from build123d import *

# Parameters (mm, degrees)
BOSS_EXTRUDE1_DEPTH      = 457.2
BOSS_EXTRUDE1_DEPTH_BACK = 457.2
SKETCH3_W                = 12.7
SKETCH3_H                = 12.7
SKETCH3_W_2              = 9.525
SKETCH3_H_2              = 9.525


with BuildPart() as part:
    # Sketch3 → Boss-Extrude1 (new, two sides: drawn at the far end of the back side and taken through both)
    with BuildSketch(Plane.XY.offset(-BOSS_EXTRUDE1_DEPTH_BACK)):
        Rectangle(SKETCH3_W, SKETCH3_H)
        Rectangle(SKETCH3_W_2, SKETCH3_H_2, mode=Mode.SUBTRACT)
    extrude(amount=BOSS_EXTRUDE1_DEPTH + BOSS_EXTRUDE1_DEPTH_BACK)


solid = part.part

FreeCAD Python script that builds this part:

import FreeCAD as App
import Part
import Sketcher

V = App.Vector
Q = App.Units.Quantity

doc = App.newDocument("Part")
body = doc.addObject("PartDesign::Body", "Body")

# Sketch on XY plane
sketch1 = body.newObject("Sketcher::SketchObject", "Sketch")
sketch1.AttachmentSupport = (doc.getObject("XY_Plane"), [""])
sketch1.MapMode = "FlatFace"
sketch1.addGeometry([
    Part.LineSegment(V(-6, 6, 0), V(-6, -6, 0)),  # 0
    Part.LineSegment(V(-6, -6, 0), V(6, -6, 0)),  # 1
    Part.LineSegment(V(6, -6, 0), V(6, 6, 0)),  # 2
    Part.LineSegment(V(6, 6, 0), V(-6, 6, 0)),  # 3
    Part.LineSegment(V(5, -5, 0), V(-5, -5, 0)),  # 4
    Part.LineSegment(V(-5, -5, 0), V(-5, 5, 0)),  # 5
    Part.LineSegment(V(-5, 5, 0), V(5, 5, 0)),  # 6
    Part.LineSegment(V(5, 5, 0), V(5, -5, 0)),  # 7
], False)
sketch1.addConstraint([
    Sketcher.Constraint("Coincident", 0, 2, 1, 1),
    Sketcher.Constraint("Coincident", 1, 2, 2, 1),
    Sketcher.Constraint("Coincident", 2, 2, 3, 1),
    Sketcher.Constraint("Coincident", 3, 2, 0, 1),
    Sketcher.Constraint("Coincident", 4, 2, 5, 1),
    Sketcher.Constraint("Coincident", 5, 2, 6, 1),
    Sketcher.Constraint("Coincident", 6, 2, 7, 1),
    Sketcher.Constraint("Coincident", 7, 2, 4, 1),
    Sketcher.Constraint("Vertical", 0),
    Sketcher.Constraint("Horizontal", 1),
    Sketcher.Constraint("Vertical", 2),
    Sketcher.Constraint("Horizontal", 3),
    Sketcher.Constraint("Horizontal", 4),
    Sketcher.Constraint("Vertical", 5),
    Sketcher.Constraint("Horizontal", 6),
    Sketcher.Constraint("Vertical", 7),
    Sketcher.Constraint("Symmetric", 0, 2, 2, 2, -1, 1),
    Sketcher.Constraint("Symmetric", 4, 2, 6, 2, -1, 1),
    Sketcher.Constraint("Equal", 3, 0),
    Sketcher.Constraint("Equal", 6, 5),
    Sketcher.Constraint("DistanceX", 1, 1, 1, 2, Q("0.5 in")),
    Sketcher.Constraint("DistanceX", 4, 2, 4, 1, Q("0.375 in")),
])
pad1 = body.newObject("PartDesign::Pad", "Pad")
pad1.Profile = sketch1
pad1.Type = "TwoLengths"
pad1.Length = Q("18 in")
pad1.Length2 = Q("18 in")

doc.recompute()
